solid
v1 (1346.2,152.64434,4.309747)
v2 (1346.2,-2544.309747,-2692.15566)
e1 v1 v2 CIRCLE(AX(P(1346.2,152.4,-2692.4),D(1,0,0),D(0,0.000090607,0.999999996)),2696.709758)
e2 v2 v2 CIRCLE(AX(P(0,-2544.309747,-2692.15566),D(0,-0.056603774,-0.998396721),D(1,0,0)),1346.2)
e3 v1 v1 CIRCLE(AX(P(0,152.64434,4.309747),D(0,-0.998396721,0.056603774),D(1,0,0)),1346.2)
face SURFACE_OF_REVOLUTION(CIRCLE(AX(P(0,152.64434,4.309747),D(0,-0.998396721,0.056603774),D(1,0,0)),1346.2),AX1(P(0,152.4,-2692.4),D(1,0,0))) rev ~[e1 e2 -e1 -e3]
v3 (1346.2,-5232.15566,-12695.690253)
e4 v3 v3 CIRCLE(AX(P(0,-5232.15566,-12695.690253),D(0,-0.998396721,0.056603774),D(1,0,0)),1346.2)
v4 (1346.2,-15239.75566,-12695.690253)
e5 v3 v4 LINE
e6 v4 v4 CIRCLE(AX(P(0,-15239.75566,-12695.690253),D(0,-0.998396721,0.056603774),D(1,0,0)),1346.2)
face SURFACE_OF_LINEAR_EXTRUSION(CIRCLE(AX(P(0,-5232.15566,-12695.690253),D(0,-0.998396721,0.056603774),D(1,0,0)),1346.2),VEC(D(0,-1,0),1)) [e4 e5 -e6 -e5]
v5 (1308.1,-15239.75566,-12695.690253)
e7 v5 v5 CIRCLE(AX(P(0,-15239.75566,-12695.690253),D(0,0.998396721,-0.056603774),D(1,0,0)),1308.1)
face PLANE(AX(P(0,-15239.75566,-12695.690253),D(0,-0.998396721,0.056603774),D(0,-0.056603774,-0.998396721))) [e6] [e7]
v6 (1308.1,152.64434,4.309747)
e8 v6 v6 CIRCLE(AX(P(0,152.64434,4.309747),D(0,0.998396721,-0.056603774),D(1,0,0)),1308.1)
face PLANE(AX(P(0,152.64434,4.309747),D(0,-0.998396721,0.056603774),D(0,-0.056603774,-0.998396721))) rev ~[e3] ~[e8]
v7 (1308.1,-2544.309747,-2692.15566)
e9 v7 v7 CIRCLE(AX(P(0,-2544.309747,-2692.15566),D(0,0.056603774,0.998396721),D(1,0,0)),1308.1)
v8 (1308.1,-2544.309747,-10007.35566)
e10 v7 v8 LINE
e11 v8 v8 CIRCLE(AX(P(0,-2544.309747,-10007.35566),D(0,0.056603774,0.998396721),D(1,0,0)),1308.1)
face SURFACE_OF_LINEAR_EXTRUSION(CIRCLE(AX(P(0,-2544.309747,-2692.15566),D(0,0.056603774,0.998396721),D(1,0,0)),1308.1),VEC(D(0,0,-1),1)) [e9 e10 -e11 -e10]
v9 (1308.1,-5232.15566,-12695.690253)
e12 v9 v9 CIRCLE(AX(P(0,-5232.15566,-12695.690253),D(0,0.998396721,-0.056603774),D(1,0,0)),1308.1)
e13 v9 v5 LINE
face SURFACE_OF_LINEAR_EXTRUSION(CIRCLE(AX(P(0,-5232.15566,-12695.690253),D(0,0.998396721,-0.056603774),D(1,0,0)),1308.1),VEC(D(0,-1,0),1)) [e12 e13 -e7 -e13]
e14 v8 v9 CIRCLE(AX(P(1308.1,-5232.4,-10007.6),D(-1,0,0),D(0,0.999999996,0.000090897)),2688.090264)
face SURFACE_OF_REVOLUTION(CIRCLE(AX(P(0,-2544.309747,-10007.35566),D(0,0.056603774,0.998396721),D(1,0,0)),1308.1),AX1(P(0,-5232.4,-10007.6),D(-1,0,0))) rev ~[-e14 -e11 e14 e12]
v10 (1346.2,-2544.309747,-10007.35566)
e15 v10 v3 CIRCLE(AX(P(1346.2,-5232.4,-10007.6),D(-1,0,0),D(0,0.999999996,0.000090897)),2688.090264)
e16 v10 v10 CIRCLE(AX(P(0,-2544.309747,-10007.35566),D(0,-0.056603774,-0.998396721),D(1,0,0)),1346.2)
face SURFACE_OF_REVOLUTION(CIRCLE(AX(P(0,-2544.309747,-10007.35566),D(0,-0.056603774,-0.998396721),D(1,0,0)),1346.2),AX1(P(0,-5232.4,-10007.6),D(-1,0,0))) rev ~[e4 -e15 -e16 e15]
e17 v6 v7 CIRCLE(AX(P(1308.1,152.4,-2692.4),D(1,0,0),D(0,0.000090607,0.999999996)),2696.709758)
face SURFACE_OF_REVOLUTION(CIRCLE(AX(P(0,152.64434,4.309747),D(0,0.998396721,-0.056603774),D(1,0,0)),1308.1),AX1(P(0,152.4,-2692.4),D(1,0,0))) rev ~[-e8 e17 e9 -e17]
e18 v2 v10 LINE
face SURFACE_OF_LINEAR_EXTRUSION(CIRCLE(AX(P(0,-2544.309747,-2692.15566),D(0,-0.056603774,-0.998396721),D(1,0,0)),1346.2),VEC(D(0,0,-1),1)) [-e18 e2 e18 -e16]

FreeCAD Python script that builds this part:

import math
import FreeCAD as App
import Part
import Sketcher
from FreeCAD import Vector
Q = App.Units.Quantity

doc = App.newDocument("Part")
params = doc.addObject("Spreadsheet::Sheet", "Params")
for row, (alias, value) in enumerate([
    ("sketch1_diameter", "106 in"),
    ("sketch1_diameter2", "103 in"),
    ("sketch2_radius", "106 in"),
    ("sketch2_width", "394 in"),
    ("sketch2_height", "288 in"),
], start=1):
    params.set(f"A{row}", alias)
    params.set(f"B{row}", "=" + value)
    params.setAlias(f"B{row}", alias)

body = doc.addObject("PartDesign::Body", "Body")

# Sketch on XZ plane
sketch1 = body.newObject("Sketcher::SketchObject", "Sketch")
sketch1.AttachmentSupport = (doc.getObject("XZ_Plane"), [""])
sketch1.MapMode = "FlatFace"
sketch1.addGeometry([
    Part.Circle(Vector(0, 0, 0), Vector(0, 0, 1), 1346),
    Part.Circle(Vector(0, 0, 0), Vector(0, 0, 1), 1308),
], False)
sketch1.addConstraint([
    Sketcher.Constraint("Coincident", 0, 3, -1, 1),
    Sketcher.Constraint("Coincident", 1, 3, -1, 1),
    Sketcher.Constraint("Diameter", 0, Q("106 in")),
    Sketcher.Constraint("Diameter", 1, Q("103 in")),
])
sketch1.setExpression("Constraints[2]", "Params.sketch1_diameter")
sketch1.setExpression("Constraints[3]", "Params.sketch1_diameter2")

# Sketch on YZ plane
sketch2 = body.newObject("Sketcher::SketchObject", "Sketch001")
sketch2.AttachmentSupport = (doc.getObject("YZ_Plane"), [""])
sketch2.MapMode = "FlatFace"
sketch2.addGeometry([
    Part.ArcOfCircle(Part.Circle(Vector(152, -2692, 0), Vector(0, 0, 1), 2692), math.radians(90), math.radians(180)),
    Part.LineSegment(Vector(-2540, -2692, 0), Vector(-2540, -10008, 0)),
    Part.ArcOfCircle(Part.Circle(Vector(-5232, -10008, 0), Vector(0, 0, 1), 2692), math.radians(-90), math.radians(0)),
    Part.LineSegment(Vector(-5232, -12700, 0), Vector(-15240, -12700, 0)),
], False)
sketch2.addConstraint([
    Sketcher.Constraint("Coincident", 0, 2, 1, 1),
    Sketcher.Constraint("Coincident", 1, 2, 2, 2),
    Sketcher.Constraint("Coincident", 2, 1, 3, 1),
    Sketcher.Constraint("Vertical", 1),
    Sketcher.Constraint("Horizontal", 3),
    Sketcher.Constraint("Equal", 0, 2),
    Sketcher.Constraint("PointOnObject", 0, 1, -1),
    Sketcher.Constraint("Horizontal", 2, 3, 1, 2),
    Sketcher.Constraint("Radius", 0, Q("106 in")),
    Sketcher.Constraint("DistanceX", 3, 2, 3, 1, Q("394 in")),
    Sketcher.Constraint("DistanceY", 1, 2, 1, 1, Q("288 in")),
    Sketcher.Constraint("DistanceX", -1, 1, 0, 3, Q("6 in")),
    Sketcher.Constraint("DistanceY", 2, 3, -1, 1, Q("394 in")),
    Sketcher.Constraint("DistanceX", -1, 1, 0, 1, Q("6 in")),
    Sketcher.Constraint("DistanceX", 3, 2, -1, 1, Q("600 in")),
])
sketch2.setExpression("Constraints[8]", "Params.sketch2_radius")
sketch2.setExpression("Constraints[9]", "Params.sketch2_width")
sketch2.setExpression("Constraints[10]", "Params.sketch2_height")
doc.recompute()

additivepipe = body.newObject("PartDesign::AdditivePipe", "AdditivePipe")
additivepipe.Profile = sketch1
additivepipe.Spine = (sketch2, ["Edge1", "Edge2", "Edge3", "Edge4"])

doc.recompute()
